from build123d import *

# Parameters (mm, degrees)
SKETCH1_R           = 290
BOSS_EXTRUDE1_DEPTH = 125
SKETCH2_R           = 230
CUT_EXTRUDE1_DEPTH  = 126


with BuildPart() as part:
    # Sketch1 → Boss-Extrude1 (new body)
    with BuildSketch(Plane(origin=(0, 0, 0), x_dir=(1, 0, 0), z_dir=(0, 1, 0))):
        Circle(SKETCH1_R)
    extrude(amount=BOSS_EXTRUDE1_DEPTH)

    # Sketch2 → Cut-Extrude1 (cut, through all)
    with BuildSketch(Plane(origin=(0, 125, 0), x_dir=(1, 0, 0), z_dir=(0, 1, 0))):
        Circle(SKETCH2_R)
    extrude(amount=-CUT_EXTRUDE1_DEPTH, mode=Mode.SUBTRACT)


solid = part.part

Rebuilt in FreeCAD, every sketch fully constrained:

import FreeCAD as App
import Part
import Sketcher
Q = App.Units.Quantity

doc = App.newDocument("Part")
body = doc.addObject("PartDesign::Body", "Body")

# Sketch on XZ plane
sketch1 = body.newObject("Sketcher::SketchObject", "Sketch")
sketch1.AttachmentSupport = (doc.getObject("XZ_Plane"), [""])
sketch1.MapMode = "FlatFace"
sketch1.addGeometry(Part.Circle(App.Vector(0, 0, 0), App.Vector(0, 0, 1), 290), False)
sketch1.addConstraint([
    Sketcher.Constraint("Coincident", 0, 3, -1, 1),
    Sketcher.Constraint("Diameter", 0, Q("580 mm")),
])
pad1 = body.newObject("PartDesign::Pad", "Pad")
pad1.Profile = sketch1
pad1.Length = 125
pad1.Reversed = True

# Sketch on XZ plane
sketch2 = body.newObject("Sketcher::SketchObject", "Sketch001")
sketch2.AttachmentSupport = (doc.getObject("XZ_Plane"), [""])
sketch2.MapMode = "FlatFace"
sketch2.AttachmentOffset = App.Placement(App.Vector(0, 0, -125), App.Rotation())
sketch2.addGeometry(Part.Circle(App.Vector(0, 0, 0), App.Vector(0, 0, 1), 230), False)
sketch2.addConstraint([
    Sketcher.Constraint("Coincident", 0, 3, -1, 1),
    Sketcher.Constraint("Diameter", 0, Q("460 mm")),
])
pocket1 = body.newObject("PartDesign::Pocket", "Pocket")
pocket1.Profile = sketch2
pocket1.Type = "ThroughAll"
pocket1.Reversed = True

doc.recompute()
